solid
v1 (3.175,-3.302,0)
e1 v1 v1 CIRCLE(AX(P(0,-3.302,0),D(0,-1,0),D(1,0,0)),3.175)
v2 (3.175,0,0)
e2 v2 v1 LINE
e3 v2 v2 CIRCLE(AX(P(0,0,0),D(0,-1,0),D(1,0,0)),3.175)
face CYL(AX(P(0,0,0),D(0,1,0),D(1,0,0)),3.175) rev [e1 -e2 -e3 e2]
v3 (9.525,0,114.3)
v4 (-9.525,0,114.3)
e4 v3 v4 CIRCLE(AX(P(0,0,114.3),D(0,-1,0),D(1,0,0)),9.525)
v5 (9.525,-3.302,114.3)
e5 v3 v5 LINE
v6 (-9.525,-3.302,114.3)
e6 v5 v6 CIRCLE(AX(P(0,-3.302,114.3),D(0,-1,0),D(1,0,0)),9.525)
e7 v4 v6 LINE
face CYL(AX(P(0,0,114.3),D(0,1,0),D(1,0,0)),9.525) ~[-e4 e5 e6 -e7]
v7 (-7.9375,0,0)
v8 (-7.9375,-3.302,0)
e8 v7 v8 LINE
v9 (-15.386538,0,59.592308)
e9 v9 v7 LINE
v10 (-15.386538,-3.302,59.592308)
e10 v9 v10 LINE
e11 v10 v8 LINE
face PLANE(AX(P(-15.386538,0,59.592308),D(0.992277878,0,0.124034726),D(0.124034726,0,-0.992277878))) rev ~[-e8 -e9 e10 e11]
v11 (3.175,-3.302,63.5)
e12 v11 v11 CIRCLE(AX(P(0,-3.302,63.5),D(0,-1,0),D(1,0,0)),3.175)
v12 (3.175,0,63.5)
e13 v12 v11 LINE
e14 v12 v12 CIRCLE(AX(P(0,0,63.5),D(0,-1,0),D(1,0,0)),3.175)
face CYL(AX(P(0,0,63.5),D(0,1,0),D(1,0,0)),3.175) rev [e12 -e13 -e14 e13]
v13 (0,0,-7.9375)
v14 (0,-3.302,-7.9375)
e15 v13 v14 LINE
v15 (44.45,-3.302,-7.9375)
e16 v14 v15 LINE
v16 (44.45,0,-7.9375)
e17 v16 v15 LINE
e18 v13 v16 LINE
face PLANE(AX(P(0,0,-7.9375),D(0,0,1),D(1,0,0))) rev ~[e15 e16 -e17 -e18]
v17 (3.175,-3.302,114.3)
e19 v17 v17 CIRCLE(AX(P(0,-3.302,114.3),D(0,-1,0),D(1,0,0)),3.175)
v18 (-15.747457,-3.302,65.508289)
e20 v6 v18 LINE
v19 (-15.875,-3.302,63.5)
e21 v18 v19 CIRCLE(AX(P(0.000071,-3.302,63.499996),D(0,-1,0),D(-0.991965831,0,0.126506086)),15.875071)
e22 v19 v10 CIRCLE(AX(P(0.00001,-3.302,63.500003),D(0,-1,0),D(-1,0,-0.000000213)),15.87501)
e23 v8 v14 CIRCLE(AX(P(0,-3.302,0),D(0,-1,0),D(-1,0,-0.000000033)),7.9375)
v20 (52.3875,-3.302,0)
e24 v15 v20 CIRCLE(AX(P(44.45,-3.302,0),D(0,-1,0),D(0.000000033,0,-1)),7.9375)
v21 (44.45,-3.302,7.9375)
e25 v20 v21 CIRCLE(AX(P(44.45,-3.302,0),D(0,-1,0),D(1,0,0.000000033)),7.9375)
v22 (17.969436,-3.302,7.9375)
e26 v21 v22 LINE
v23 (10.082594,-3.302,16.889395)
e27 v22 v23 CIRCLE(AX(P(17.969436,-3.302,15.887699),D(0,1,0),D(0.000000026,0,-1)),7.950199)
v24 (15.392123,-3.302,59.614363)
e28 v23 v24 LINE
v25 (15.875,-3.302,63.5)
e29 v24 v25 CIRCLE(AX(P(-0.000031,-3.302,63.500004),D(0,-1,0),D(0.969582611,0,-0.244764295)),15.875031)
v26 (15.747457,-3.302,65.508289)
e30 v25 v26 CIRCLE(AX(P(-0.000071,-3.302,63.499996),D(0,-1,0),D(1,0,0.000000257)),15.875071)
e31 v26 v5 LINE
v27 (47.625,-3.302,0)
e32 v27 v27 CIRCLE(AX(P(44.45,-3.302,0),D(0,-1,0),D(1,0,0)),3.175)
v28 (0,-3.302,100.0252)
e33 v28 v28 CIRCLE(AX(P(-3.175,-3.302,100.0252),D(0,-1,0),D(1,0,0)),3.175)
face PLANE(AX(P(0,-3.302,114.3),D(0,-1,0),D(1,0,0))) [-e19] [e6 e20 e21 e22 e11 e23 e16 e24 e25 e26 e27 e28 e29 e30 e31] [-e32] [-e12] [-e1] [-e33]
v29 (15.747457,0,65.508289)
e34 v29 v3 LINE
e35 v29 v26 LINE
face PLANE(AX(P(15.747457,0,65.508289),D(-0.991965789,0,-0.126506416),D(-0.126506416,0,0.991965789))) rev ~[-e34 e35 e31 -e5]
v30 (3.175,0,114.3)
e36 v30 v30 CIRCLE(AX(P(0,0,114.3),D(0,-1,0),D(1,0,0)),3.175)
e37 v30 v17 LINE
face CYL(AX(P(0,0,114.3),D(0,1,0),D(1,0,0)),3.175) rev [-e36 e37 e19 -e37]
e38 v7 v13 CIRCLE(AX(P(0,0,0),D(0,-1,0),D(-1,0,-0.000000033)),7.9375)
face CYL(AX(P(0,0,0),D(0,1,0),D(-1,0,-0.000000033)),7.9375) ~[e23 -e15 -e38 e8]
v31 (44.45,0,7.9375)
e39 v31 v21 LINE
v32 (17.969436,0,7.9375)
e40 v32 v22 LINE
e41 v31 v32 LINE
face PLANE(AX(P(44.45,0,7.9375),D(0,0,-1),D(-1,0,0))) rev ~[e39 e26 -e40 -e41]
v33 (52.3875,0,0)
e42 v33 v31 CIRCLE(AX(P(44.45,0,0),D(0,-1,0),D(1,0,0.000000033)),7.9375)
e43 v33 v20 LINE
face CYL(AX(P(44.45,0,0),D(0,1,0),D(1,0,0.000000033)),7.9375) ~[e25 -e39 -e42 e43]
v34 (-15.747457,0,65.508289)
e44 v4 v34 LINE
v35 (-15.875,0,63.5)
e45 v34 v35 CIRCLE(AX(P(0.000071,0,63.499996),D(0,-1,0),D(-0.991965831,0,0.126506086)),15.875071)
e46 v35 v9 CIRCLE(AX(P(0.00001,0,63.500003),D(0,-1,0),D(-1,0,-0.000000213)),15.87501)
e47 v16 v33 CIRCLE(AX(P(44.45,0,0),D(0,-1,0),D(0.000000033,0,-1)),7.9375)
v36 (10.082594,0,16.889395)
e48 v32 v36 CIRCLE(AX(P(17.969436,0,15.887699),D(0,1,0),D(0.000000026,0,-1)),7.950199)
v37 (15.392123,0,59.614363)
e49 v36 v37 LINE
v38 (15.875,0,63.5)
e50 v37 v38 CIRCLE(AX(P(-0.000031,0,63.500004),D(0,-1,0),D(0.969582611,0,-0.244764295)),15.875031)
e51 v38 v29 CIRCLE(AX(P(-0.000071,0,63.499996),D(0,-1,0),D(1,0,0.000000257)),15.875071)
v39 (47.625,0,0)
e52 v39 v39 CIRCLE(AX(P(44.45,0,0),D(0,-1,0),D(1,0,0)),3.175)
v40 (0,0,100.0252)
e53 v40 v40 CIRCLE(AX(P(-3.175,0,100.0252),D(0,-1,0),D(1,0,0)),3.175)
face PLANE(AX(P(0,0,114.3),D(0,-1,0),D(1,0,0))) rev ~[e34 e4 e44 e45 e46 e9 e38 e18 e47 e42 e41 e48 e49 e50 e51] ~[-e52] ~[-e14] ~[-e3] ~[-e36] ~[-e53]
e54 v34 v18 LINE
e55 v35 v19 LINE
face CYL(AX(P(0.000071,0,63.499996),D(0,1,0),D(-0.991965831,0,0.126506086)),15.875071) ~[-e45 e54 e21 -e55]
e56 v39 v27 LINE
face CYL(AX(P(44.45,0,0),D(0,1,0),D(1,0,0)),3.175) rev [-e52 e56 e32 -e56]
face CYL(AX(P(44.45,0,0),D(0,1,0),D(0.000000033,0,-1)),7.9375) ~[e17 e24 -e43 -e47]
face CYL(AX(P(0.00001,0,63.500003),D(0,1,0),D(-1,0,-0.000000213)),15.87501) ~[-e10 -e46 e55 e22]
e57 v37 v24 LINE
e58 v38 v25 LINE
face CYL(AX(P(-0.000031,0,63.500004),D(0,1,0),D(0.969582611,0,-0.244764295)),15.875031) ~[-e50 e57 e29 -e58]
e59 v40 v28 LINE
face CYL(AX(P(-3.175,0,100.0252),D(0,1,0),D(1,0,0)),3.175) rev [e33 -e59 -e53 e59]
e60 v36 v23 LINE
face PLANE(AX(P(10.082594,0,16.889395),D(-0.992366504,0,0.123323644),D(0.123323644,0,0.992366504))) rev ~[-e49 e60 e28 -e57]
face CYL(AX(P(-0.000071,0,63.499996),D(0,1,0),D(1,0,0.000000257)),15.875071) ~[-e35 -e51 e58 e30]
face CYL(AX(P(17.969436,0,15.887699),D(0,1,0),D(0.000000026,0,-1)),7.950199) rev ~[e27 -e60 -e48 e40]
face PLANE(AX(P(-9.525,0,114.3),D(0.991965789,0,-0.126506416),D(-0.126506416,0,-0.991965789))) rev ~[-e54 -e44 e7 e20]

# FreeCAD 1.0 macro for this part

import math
import FreeCAD as App
import Part
import Sketcher
from FreeCAD import Vector
Q = App.Units.Quantity

doc = App.newDocument("Part")
body = doc.addObject("PartDesign::Body", "Body")

# Sketch on XZ plane
sketch1 = body.newObject("Sketcher::SketchObject", "Sketch")
sketch1.AttachmentSupport = (doc.getObject("XZ_Plane"), [""])
sketch1.MapMode = "FlatFace"
sketch1.addGeometry([
    Part.ArcOfCircle(Part.Circle(Vector(0, 114.3, 0), Vector(0, 0, 1), 9.525), math.radians(0), math.radians(180)),  # 0
    Part.LineSegment(Vector(-9.525, 114.3, 0), Vector(-15.747457, 65.508289, 0)),  # 1
    Part.ArcOfCircle(Part.Circle(Vector(0.000071, 63.499996, 0), Vector(0, 0, 1), 15.875071), math.radians(172.732261), math.radians(179.999985)),  # 2
    Part.ArcOfCircle(Part.Circle(Vector(0.00001, 63.500003, 0), Vector(0, 0, 1), 15.87501), math.radians(-179.999988), math.radians(-165.749965)),  # 3
    Part.LineSegment(Vector(-15.386538, 59.592308, 0), Vector(-7.9375, 0, 0)),  # 4
    Part.ArcOfCircle(Part.Circle(Vector(0, 0, 0), Vector(0, 0, 1), 7.9375), math.radians(-179.999998), math.radians(-90.000002)),  # 5
    Part.LineSegment(Vector(0, -7.9375, 0), Vector(44.45, -7.9375, 0)),  # 6
    Part.ArcOfCircle(Part.Circle(Vector(44.45, 0, 0), Vector(0, 0, 1), 7.9375), math.radians(-89.999998), math.radians(-0.000002)),  # 7
    Part.ArcOfCircle(Part.Circle(Vector(44.45, 0, 0), Vector(0, 0, 1), 7.9375), math.radians(0.000002), math.radians(89.999998)),  # 8
    Part.LineSegment(Vector(44.45, 7.9375, 0), Vector(17.969436, 7.9375, 0)),  # 9
    Part.ArcOfCircle(Part.Circle(Vector(17.969436, 15.887699, 0), Vector(0, 0, 1), 7.950199), math.radians(172.761705), math.radians(270.000001)),  # 10
    Part.LineSegment(Vector(10.082594, 16.889395, 0), Vector(15.392123, 59.614363, 0)),  # 11
    Part.ArcOfCircle(Part.Circle(Vector(-0.000031, 63.500004, 0), Vector(0, 0, 1), 15.875031), math.radians(-14.167905), math.radians(-0.000014)),  # 12
    Part.ArcOfCircle(Part.Circle(Vector(-0.000071, 63.499996, 0), Vector(0, 0, 1), 15.875071), math.radians(0.000015), math.radians(7.267739)),  # 13
    Part.LineSegment(Vector(15.747457, 65.508289, 0), Vector(9.525, 114.3, 0)),  # 14
    Part.Circle(Vector(0, 0, 0), Vector(0, 0, 1), 3.175),  # 15
    Part.Circle(Vector(44.45, 0, 0), Vector(0, 0, 1), 3.175),  # 16
    Part.Circle(Vector(0, 63.5, 0), Vector(0, 0, 1), 3.175),  # 17
    Part.Circle(Vector(-3.175, 100.0252, 0), Vector(0, 0, 1), 3.175),  # 18
    Part.Circle(Vector(0, 114.3, 0), Vector(0, 0, 1), 3.175),  # 19
], False)
sketch1.addConstraint([
    Sketcher.Constraint("Coincident", 0, 2, 1, 1),
    Sketcher.Constraint("Tangent", 1, 2, 2, 1),
    Sketcher.Constraint("Tangent", 2, 2, 3, 1),
    Sketcher.Constraint("Coincident", 3, 2, 4, 1),
    Sketcher.Constraint("Coincident", 4, 2, 5, 1),
    Sketcher.Constraint("Tangent", 5, 2, 6, 1),
    Sketcher.Constraint("Tangent", 6, 2, 7, 1),
    Sketcher.Constraint("Tangent", 7, 2, 8, 1),
    Sketcher.Constraint("Tangent", 8, 2, 9, 1),
    Sketcher.Constraint("Tangent", 9, 2, 10, 2),
    Sketcher.Constraint("Coincident", 10, 1, 11, 1),
    Sketcher.Constraint("Coincident", 11, 2, 12, 1),
    Sketcher.Constraint("Tangent", 12, 2, 13, 1),
    Sketcher.Constraint("Tangent", 13, 2, 14, 1),
    Sketcher.Constraint("Coincident", 14, 2, 0, 1),
    Sketcher.Constraint("Horizontal", 6),
    Sketcher.Constraint("Horizontal", 9),
    Sketcher.Constraint("Coincident", 5, 3, -1, 1),
    Sketcher.Constraint("Coincident", 15, 3, -1, 1),
    Sketcher.Constraint("Coincident", 16, 3, 7, 3),
    Sketcher.Constraint("Coincident", 19, 3, 0, 3),
    Sketcher.Constraint("Equal", 5, 7),
    Sketcher.Constraint("Equal", 7, 8),
    Sketcher.Constraint("Equal", 2, 13),
    Sketcher.Constraint("Equal", 15, 16),
    Sketcher.Constraint("Equal", 16, 17),
    Sketcher.Constraint("Equal", 17, 18),
    Sketcher.Constraint("Equal", 18, 19),
    Sketcher.Constraint("Symmetric", 2, 3, 13, 3, -2),
    Sketcher.Constraint("Symmetric", 0, 2, 14, 2, -2),
    Sketcher.Constraint("PointOnObject", 17, 3, -2),
    Sketcher.Constraint("PointOnObject", 4, 2, -1),
    Sketcher.Constraint("PointOnObject", 7, 2, -1),
    Sketcher.Constraint("Horizontal", 19, 3, 0, 2),
    Sketcher.Constraint("Horizontal", 17, 3, 2, 2),
    Sketcher.Constraint("Horizontal", 2, 2, 12, 2),
    Sketcher.Constraint("Diameter", 15, Q("0.25 in")),
    Sketcher.Constraint("Radius", 0, Q("0.375 in")),
    Sketcher.Constraint("Radius", 5, Q("0.3125 in")),
    Sketcher.Constraint("Radius", 10, Q("0.313 in")),
    Sketcher.Constraint("DistanceY", 2, 3, 0, 3, Q("2.0000002 in")),
    Sketcher.Constraint("DistanceY", 17, 3, 0, 3, Q("2 in")),
    Sketcher.Constraint("DistanceX", 6, 1, 6, 2, Q("1.75 in")),
    Sketcher.Constraint("DistanceY", -1, 1, 0, 3, Q("4.5 in")),
    Sketcher.Constraint("DistanceX", 18, 3, 14, 2, Q("0.5 in")),
    Sketcher.Constraint("DistanceY", -1, 1, 18, 3, Q("3.938 in")),
    Sketcher.Constraint("DistanceX", 2, 2, -1, 1, Q("0.625 in")),
    Sketcher.Constraint("Radius", 2, Q("15.875071 mm")),
    Sketcher.Constraint("Radius", 3, Q("15.87501 mm")),
    Sketcher.Constraint("Radius", 12, Q("15.875031 mm")),
    Sketcher.Constraint("Distance", 4, Q("60.056068 mm")),
    Sketcher.Constraint("DistanceX", 9, 2, 9, 1, Q("26.480564 mm")),
    Sketcher.Constraint("DistanceX", 10, 1, 10, 3, Q("7.886842 mm")),
    Sketcher.Constraint("DistanceY", 11, 2, 3, 3, Q("3.88564 mm")),
])
pad1 = body.newObject("PartDesign::Pad", "Pad")
pad1.Profile = sketch1
pad1.Length = Q("0.13 in")

doc.recompute()
